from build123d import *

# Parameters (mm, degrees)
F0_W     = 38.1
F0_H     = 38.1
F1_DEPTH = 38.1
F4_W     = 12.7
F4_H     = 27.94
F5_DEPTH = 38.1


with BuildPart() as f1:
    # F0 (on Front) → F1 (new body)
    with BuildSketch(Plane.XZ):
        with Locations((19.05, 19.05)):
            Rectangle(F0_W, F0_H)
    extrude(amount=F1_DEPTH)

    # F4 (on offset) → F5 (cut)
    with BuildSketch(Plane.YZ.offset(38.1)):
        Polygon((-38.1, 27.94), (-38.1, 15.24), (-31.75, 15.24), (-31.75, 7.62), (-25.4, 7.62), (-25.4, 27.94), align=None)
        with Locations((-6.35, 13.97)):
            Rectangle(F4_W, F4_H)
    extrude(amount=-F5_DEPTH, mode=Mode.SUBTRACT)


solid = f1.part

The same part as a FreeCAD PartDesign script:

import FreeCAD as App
import Part
import Sketcher
Q = App.Units.Quantity


def add_polygon(sketch, points):
    """Adds a closed chain of lines whose ends are joined by coincident constraints."""
    first, n = sketch.GeometryCount, len(points)
    for a, b in zip(points, points[1:] + points[:1]):
        sketch.addGeometry(Part.LineSegment(App.Vector(*a, 0), App.Vector(*b, 0)), False)
    for i in range(n):
        sketch.addConstraint(Sketcher.Constraint("Coincident", first + i, 2, first + (i + 1) % n, 1))

doc = App.newDocument("Part")
body = doc.addObject("PartDesign::Body", "Body")

# Sketch on XZ plane
sketch1 = doc.addObject("Sketcher::SketchObject", "Sketch")
body.addObject(sketch1)
sketch1.AttachmentSupport = (doc.XZ_Plane, [""])
sketch1.MapMode = "FlatFace"
add_polygon(sketch1, [(0, 38), (0, 0), (38, 0), (38, 38)])  # lines 0-3
sketch1.addConstraint([
    Sketcher.Constraint("Vertical", 0),
    Sketcher.Constraint("Horizontal", 1),
    Sketcher.Constraint("Vertical", 2),
    Sketcher.Constraint("Horizontal", 3),
    Sketcher.Constraint("Coincident", 0, 2, -1, 1),
    Sketcher.Constraint("Equal", 3, 0),
    Sketcher.Constraint("DistanceX", 1, 1, 1, 2, Q("1.5 in")),
])
pad1 = doc.addObject("PartDesign::Pad", "Pad")
body.addObject(pad1)
pad1.Profile = sketch1
pad1.Length = Q("1.5 in")

# Sketch on YZ plane
sketch2 = doc.addObject("Sketcher::SketchObject", "Sketch001")
body.addObject(sketch2)
sketch2.AttachmentSupport = (doc.YZ_Plane, [""])
sketch2.MapMode = "FlatFace"
sketch2.AttachmentOffset = App.Placement(App.Vector(0, 0, 1.5 * 25.4), App.Rotation())
add_polygon(sketch2, [(-38, 28), (-38, 15), (-32, 15), (-32, 8), (-25, 8), (-25, 28)])  # lines 0-5
add_polygon(sketch2, [(-13, 28), (-13, 0), (0, 0), (0, 28)])  # lines 6-9
sketch2.addConstraint([
    Sketcher.Constraint("Vertical", 0),
    Sketcher.Constraint("Horizontal", 1),
    Sketcher.Constraint("Vertical", 2),
    Sketcher.Constraint("Horizontal", 3),
    Sketcher.Constraint("Vertical", 4),
    Sketcher.Constraint("Horizontal", 5),
    Sketcher.Constraint("Vertical", 6),
    Sketcher.Constraint("Horizontal", 7),
    Sketcher.Constraint("Vertical", 8),
    Sketcher.Constraint("Horizontal", 9),
    Sketcher.Constraint("Coincident", 7, 2, -1, 1),
    Sketcher.Constraint("Horizontal", 5, 2, 8, 2),
    Sketcher.Constraint("Equal", 1, 3),
    Sketcher.Constraint("Equal", 5, 7),
    Sketcher.Constraint("Equal", 9, 0),
    Sketcher.Constraint("DistanceX", 5, 2, 5, 1, Q("0.5 in")),
    Sketcher.Constraint("DistanceY", 2, 2, 2, 1, Q("0.3 in")),
    Sketcher.Constraint("DistanceY", 6, 2, 6, 1, Q("1.1 in")),
    Sketcher.Constraint("DistanceX", 3, 2, -1, 1, Q("1 in")),
])
pocket1 = doc.addObject("PartDesign::Pocket", "Pocket")
body.addObject(pocket1)
pocket1.Profile = sketch2
pocket1.Length = Q("1.5 in")

doc.recompute()
